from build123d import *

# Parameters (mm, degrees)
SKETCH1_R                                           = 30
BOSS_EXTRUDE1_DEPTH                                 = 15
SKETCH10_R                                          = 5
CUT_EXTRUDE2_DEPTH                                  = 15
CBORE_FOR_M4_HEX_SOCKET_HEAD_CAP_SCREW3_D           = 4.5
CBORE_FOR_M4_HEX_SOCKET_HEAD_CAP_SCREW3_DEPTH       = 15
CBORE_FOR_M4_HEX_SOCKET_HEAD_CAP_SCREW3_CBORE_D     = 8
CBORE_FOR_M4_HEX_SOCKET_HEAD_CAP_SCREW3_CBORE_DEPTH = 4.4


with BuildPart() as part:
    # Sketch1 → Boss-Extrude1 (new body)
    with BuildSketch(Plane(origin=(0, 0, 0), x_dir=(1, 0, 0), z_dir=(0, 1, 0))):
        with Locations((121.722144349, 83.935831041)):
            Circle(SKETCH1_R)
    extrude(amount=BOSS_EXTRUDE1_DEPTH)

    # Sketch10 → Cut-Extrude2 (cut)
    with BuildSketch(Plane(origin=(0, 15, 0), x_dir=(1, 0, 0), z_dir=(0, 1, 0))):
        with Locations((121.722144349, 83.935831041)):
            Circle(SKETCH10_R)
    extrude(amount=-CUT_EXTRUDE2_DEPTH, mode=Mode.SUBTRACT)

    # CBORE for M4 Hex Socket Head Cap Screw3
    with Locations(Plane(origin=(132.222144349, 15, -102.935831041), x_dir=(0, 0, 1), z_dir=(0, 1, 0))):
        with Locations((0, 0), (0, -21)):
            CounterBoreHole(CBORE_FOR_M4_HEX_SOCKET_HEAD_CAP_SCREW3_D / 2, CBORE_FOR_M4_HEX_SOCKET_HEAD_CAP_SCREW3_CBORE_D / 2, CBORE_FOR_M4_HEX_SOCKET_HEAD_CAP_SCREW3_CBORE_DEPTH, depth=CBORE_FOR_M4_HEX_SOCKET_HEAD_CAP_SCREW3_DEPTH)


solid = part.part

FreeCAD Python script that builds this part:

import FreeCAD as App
import Part
import Sketcher

V = App.Vector
Q = App.Units.Quantity

doc = App.newDocument("Part")
body = doc.addObject("PartDesign::Body", "Body")

# Sketch on XZ plane
sketch1 = body.newObject("Sketcher::SketchObject", "Sketch")
sketch1.AttachmentSupport = (doc.getObject("XZ_Plane"), [""])
sketch1.MapMode = "FlatFace"
sketch1.addGeometry(Part.Circle(V(122, -84, 0), V(0, 0, 1), 30), False)
sketch1.addConstraint([
    Sketcher.Constraint("Diameter", 0, Q("60 mm")),
    Sketcher.Constraint("DistanceY", 0, 3, -1, 1, Q("83.935831 mm")),
    Sketcher.Constraint("DistanceX", -1, 1, 0, 3, Q("121.722144 mm")),
])
pad1 = body.newObject("PartDesign::Pad", "Pad")
pad1.Profile = sketch1
pad1.Length = 15
pad1.Reversed = True

# Sketch on XZ plane
sketch2 = body.newObject("Sketcher::SketchObject", "Sketch001")
sketch2.AttachmentSupport = (doc.getObject("XZ_Plane"), [""])
sketch2.MapMode = "FlatFace"
sketch2.AttachmentOffset = App.Placement(V(0, 0, -15), App.Rotation())
sketch2.addGeometry(Part.Circle(V(122, -84, 0), V(0, 0, 1), 5), False)
sketch2.addConstraint([
    Sketcher.Constraint("Diameter", 0, Q("10 mm")),
    Sketcher.Constraint("DistanceY", 0, 3, -1, 1, Q("83.935831 mm")),
    Sketcher.Constraint("DistanceX", -1, 1, 0, 3, Q("121.722144 mm")),
])
pocket1 = body.newObject("PartDesign::Pocket", "Pocket")
pocket1.Profile = sketch2
pocket1.Length = 15
pocket1.Reversed = True

# Sketch on XZ plane
sketch3 = body.newObject("Sketcher::SketchObject", "Sketch002")
sketch3.AttachmentSupport = (doc.getObject("XZ_Plane"), [""])
sketch3.MapMode = "FlatFace"
sketch3.AttachmentOffset = App.Placement(V(0, 0, -15), App.Rotation())
sketch3.addGeometry([
    Part.Circle(V(132.2, -102.9, 0), V(0, 0, 1), 2.2),
    Part.Circle(V(111.2, -102.9, 0), V(0, 0, 1), 2.2),
], False)
sketch3.addConstraint([
    Sketcher.Constraint("Equal", 0, 1),
    Sketcher.Constraint("Horizontal", 0, 3, 1, 3),
    Sketcher.Constraint("Diameter", 0, Q("4.5 mm")),
    Sketcher.Constraint("DistanceX", 1, 3, 0, 3, Q("21 mm")),
    Sketcher.Constraint("DistanceY", 0, 3, -1, 1, Q("102.935831 mm")),
    Sketcher.Constraint("DistanceX", -1, 1, 0, 3, Q("132.222144 mm")),
])
doc.recompute()
hole = body.newObject("PartDesign::Hole", "Hole")
hole.Profile = sketch3
hole.ThreadType = "None"
hole.Diameter = 4.5
hole.DepthType = "Dimension"
hole.Depth = 15
hole.DrillPoint = "Flat"
hole.HoleCutType = "Counterbore"
hole.HoleCutDiameter = 8
hole.HoleCutDepth = 4.4
hole.Reversed = True

doc.recompute()
